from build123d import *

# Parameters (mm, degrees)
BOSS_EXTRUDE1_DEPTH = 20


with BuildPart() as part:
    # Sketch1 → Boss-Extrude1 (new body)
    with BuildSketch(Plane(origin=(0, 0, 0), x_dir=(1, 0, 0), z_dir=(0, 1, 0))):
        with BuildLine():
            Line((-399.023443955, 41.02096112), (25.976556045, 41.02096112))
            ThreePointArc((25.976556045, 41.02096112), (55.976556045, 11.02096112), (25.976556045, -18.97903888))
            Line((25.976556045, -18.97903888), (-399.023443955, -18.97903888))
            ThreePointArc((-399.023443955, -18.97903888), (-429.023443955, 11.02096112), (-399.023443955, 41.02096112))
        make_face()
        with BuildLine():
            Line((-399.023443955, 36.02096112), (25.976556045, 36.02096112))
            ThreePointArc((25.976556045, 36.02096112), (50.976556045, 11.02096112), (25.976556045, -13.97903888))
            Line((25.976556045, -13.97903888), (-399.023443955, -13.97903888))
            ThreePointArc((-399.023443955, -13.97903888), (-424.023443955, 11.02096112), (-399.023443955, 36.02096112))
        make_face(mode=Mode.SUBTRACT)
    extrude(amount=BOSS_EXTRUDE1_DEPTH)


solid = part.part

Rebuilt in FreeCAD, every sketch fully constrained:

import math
import FreeCAD as App
import Part
import Sketcher

V = App.Vector
Q = App.Units.Quantity

doc = App.newDocument("Part")
body = doc.addObject("PartDesign::Body", "Body")

# Sketch on XZ plane
sketch1 = body.newObject("Sketcher::SketchObject", "Sketch")
sketch1.AttachmentSupport = (doc.getObject("XZ_Plane"), [""])
sketch1.MapMode = "FlatFace"
sketch1.addGeometry([
    Part.LineSegment(V(26, -41, 0), V(-399, -41, 0)),  # 0
    Part.ArcOfCircle(Part.Circle(V(-399, -11, 0), V(0, 0, 1), 30), math.radians(90), math.radians(270)),  # 1
    Part.LineSegment(V(-399, 19, 0), V(26, 19, 0)),  # 2
    Part.ArcOfCircle(Part.Circle(V(26, -11, 0), V(0, 0, 1), 30), math.radians(-90), math.radians(90)),  # 3
    Part.LineSegment(V(-399, -36, 0), V(26, -36, 0)),  # 4
    Part.ArcOfCircle(Part.Circle(V(26, -11, 0), V(0, 0, 1), 25), math.radians(-90), math.radians(90)),  # 5
    Part.LineSegment(V(26, 14, 0), V(-399, 14, 0)),  # 6
    Part.ArcOfCircle(Part.Circle(V(-399, -11, 0), V(0, 0, 1), 25), math.radians(90), math.radians(270)),  # 7
], False)
sketch1.addConstraint([
    Sketcher.Constraint("Tangent", 0, 2, 1, 2),
    Sketcher.Constraint("Tangent", 1, 1, 2, 1),
    Sketcher.Constraint("Tangent", 2, 2, 3, 2),
    Sketcher.Constraint("Tangent", 3, 1, 0, 1),
    Sketcher.Constraint("Tangent", 4, 2, 5, 1),
    Sketcher.Constraint("Tangent", 5, 2, 6, 1),
    Sketcher.Constraint("Tangent", 6, 2, 7, 1),
    Sketcher.Constraint("Tangent", 7, 2, 4, 1),
    Sketcher.Constraint("Horizontal", 0),
    Sketcher.Constraint("Horizontal", 2),
    Sketcher.Constraint("Horizontal", 4),
    Sketcher.Constraint("Horizontal", 6),
    Sketcher.Constraint("Coincident", 5, 3, 3, 3),
    Sketcher.Constraint("Vertical", 7, 3, 0, 2),
    Sketcher.Constraint("Radius", 1, Q("30 mm")),
    Sketcher.Constraint("Radius", 5, Q("25 mm")),
    Sketcher.Constraint("DistanceX", 0, 2, 0, 1, Q("425 mm")),
    Sketcher.Constraint("DistanceY", 1, 3, -1, 1, Q("11.020961 mm")),
    Sketcher.Constraint("DistanceX", 1, 3, -1, 1, Q("399.023444 mm")),
])
pad1 = body.newObject("PartDesign::Pad", "Pad")
pad1.Profile = sketch1
pad1.Length = 20
pad1.Reversed = True

doc.recompute()
